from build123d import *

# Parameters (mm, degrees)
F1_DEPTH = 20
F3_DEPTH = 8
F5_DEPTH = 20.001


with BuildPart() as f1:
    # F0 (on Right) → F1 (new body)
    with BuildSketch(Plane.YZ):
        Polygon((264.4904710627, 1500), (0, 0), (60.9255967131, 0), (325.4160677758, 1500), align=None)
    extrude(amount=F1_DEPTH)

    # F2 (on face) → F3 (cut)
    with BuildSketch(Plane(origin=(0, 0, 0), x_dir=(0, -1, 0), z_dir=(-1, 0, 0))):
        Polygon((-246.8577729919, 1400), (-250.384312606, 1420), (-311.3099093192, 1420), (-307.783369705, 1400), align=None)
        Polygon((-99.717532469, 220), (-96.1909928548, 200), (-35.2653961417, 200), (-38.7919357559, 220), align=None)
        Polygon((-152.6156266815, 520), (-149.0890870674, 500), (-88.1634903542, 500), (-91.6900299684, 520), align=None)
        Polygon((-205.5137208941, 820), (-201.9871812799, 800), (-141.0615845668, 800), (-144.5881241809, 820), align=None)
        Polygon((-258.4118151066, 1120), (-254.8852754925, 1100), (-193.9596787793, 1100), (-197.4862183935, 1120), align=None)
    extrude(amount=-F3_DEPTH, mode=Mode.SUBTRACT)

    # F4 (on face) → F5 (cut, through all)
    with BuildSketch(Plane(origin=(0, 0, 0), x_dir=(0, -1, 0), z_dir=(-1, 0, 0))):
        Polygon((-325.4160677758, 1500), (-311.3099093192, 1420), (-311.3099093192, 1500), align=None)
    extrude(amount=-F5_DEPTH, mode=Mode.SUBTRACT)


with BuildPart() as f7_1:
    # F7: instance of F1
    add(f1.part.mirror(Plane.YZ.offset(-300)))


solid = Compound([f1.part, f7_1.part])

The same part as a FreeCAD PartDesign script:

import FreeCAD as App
import Part
import Sketcher
from FreeCAD import Vector
Q = App.Units.Quantity


def add_polygon(sketch, points):
    """Adds a closed chain of lines whose ends are joined by coincident constraints."""
    first, n = sketch.GeometryCount, len(points)
    for a, b in zip(points, points[1:] + points[:1]):
        sketch.addGeometry(Part.LineSegment(App.Vector(*a, 0), App.Vector(*b, 0)), False)
    for i in range(n):
        sketch.addConstraint(Sketcher.Constraint("Coincident", first + i, 2, first + (i + 1) % n, 1))

doc = App.newDocument("Part")
body = doc.addObject("PartDesign::Body", "Body")

# Sketch on YZ plane
sketch1 = body.newObject("Sketcher::SketchObject", "Sketch")
sketch1.AttachmentSupport = (doc.getObject("YZ_Plane"), [""])
sketch1.MapMode = "FlatFace"
add_polygon(sketch1, [(264, 1500), (0, 0), (61, 0), (325, 1500)])  # lines 0-3
sketch1.addConstraint([
    Sketcher.Constraint("Horizontal", 1),
    Sketcher.Constraint("Horizontal", 3),
    Sketcher.Constraint("Coincident", 0, 2, -1, 1),
    Sketcher.Constraint("Parallel", 0, 2),
    Sketcher.Constraint("Angle", 0, Q("-100 deg")),
    Sketcher.Constraint("DistanceY", -1, 1, 2, 2, Q("1500 mm")),
    Sketcher.Constraint("DistanceX", 1, 1, 1, 2, Q("60.925597 mm")),
])
pad1 = body.newObject("PartDesign::Pad", "Pad")
pad1.Profile = sketch1
pad1.Length = 20

# Sketch on YZ plane
sketch2 = body.newObject("Sketcher::SketchObject", "Sketch001")
sketch2.AttachmentSupport = (doc.getObject("YZ_Plane"), [""])
sketch2.MapMode = "FlatFace"
add_polygon(sketch2, [(247, 1400), (250, 1420), (311, 1420), (308, 1400)])  # lines 0-3
add_polygon(sketch2, [(100, 220), (96, 200), (35, 200), (39, 220)])  # lines 4-7
add_polygon(sketch2, [(153, 520), (149, 500), (88, 500), (92, 520)])  # lines 8-11
add_polygon(sketch2, [(206, 820), (202, 800), (141, 800), (145, 820)])  # lines 12-15
add_polygon(sketch2, [(258, 1120), (255, 1100), (194, 1100), (197, 1120)])  # lines 16-19
sketch2.addConstraint([
    Sketcher.Constraint("Horizontal", 1),
    Sketcher.Constraint("Horizontal", 3),
    Sketcher.Constraint("Horizontal", 5),
    Sketcher.Constraint("Horizontal", 7),
    Sketcher.Constraint("Horizontal", 9),
    Sketcher.Constraint("Horizontal", 11),
    Sketcher.Constraint("Horizontal", 13),
    Sketcher.Constraint("Horizontal", 15),
    Sketcher.Constraint("Horizontal", 17),
    Sketcher.Constraint("Horizontal", 19),
    Sketcher.Constraint("Parallel", 0, 2),
    Sketcher.Constraint("Parallel", 2, 4),
    Sketcher.Constraint("Parallel", 4, 6),
    Sketcher.Constraint("Parallel", 6, 8),
    Sketcher.Constraint("Parallel", 8, 10),
    Sketcher.Constraint("Parallel", 10, 12),
    Sketcher.Constraint("Parallel", 12, 14),
    Sketcher.Constraint("Parallel", 14, 16),
    Sketcher.Constraint("Parallel", 16, 18),
    Sketcher.Constraint("Equal", 3, 5),
    Sketcher.Constraint("Equal", 7, 9),
    Sketcher.Constraint("Equal", 11, 13),
    Sketcher.Constraint("Equal", 15, 17),
    Sketcher.Constraint("Equal", 2, 4),
    Sketcher.Constraint("Equal", 6, 8),
    Sketcher.Constraint("Equal", 10, 12),
    Sketcher.Constraint("Equal", 14, 16),
    Sketcher.Constraint("Angle", 0, Q("80 deg")),
    Sketcher.Constraint("DistanceY", -1, 1, 0, 2, Q("1420 mm")),
    Sketcher.Constraint("DistanceY", -1, 1, 2, 2, Q("1400 mm")),
    Sketcher.Constraint("DistanceY", -1, 1, 4, 2, Q("200 mm")),
    Sketcher.Constraint("DistanceY", -1, 1, 8, 2, Q("500 mm")),
    Sketcher.Constraint("DistanceY", -1, 1, 12, 2, Q("800 mm")),
    Sketcher.Constraint("DistanceY", -1, 1, 16, 2, Q("1100 mm")),
    Sketcher.Constraint("DistanceX", 1, 1, 1, 2, Q("60.925597 mm")),
    Sketcher.Constraint("DistanceX", -1, 1, 1, 2, Q("311.309909 mm")),
    Sketcher.Constraint("DistanceX", -1, 1, 9, 2, Q("88.16349 mm")),
    Sketcher.Constraint("DistanceX", -1, 1, 12, 2, Q("201.987181 mm")),
    Sketcher.Constraint("DistanceX", -1, 1, 17, 2, Q("193.959679 mm")),
    Sketcher.Constraint("DistanceX", 4, 2, 3, 2, Q("150.66678 mm")),
])
pocket1 = body.newObject("PartDesign::Pocket", "Pocket")
pocket1.Profile = sketch2
pocket1.Length = 8
pocket1.Reversed = True

# Sketch on YZ plane
sketch3 = body.newObject("Sketcher::SketchObject", "Sketch002")
sketch3.AttachmentSupport = (doc.getObject("YZ_Plane"), [""])
sketch3.MapMode = "FlatFace"
add_polygon(sketch3, [(325, 1500), (311, 1420), (311, 1500)])  # lines 0-2
sketch3.addConstraint([
    Sketcher.Constraint("Vertical", 1),
    Sketcher.Constraint("Horizontal", 2),
    Sketcher.Constraint("DistanceY", 1, 1, 1, 2, Q("80 mm")),
    Sketcher.Constraint("Angle", 0, Q("-100 deg")),
    Sketcher.Constraint("DistanceY", -1, 1, 0, 2, Q("1420 mm")),
    Sketcher.Constraint("DistanceX", -1, 1, 0, 2, Q("311.309909 mm")),
])
pocket2 = body.newObject("PartDesign::Pocket", "Pocket001")
pocket2.Profile = sketch3
pocket2.Type = "ThroughAll"
pocket2.Reversed = True
body2 = doc.addObject("PartDesign::Body", "Body001")
doc.recompute()

mirroring = doc.addObject("Part::Mirroring", "Mirroring")
mirroring.Source = body
mirroring.Base = Vector(-300, 0, 0)
mirroring.Normal = Vector(1, 0, 0)
body2.BaseFeature = mirroring
doc.recompute()
mirroring.Visibility = False

doc.recompute()
